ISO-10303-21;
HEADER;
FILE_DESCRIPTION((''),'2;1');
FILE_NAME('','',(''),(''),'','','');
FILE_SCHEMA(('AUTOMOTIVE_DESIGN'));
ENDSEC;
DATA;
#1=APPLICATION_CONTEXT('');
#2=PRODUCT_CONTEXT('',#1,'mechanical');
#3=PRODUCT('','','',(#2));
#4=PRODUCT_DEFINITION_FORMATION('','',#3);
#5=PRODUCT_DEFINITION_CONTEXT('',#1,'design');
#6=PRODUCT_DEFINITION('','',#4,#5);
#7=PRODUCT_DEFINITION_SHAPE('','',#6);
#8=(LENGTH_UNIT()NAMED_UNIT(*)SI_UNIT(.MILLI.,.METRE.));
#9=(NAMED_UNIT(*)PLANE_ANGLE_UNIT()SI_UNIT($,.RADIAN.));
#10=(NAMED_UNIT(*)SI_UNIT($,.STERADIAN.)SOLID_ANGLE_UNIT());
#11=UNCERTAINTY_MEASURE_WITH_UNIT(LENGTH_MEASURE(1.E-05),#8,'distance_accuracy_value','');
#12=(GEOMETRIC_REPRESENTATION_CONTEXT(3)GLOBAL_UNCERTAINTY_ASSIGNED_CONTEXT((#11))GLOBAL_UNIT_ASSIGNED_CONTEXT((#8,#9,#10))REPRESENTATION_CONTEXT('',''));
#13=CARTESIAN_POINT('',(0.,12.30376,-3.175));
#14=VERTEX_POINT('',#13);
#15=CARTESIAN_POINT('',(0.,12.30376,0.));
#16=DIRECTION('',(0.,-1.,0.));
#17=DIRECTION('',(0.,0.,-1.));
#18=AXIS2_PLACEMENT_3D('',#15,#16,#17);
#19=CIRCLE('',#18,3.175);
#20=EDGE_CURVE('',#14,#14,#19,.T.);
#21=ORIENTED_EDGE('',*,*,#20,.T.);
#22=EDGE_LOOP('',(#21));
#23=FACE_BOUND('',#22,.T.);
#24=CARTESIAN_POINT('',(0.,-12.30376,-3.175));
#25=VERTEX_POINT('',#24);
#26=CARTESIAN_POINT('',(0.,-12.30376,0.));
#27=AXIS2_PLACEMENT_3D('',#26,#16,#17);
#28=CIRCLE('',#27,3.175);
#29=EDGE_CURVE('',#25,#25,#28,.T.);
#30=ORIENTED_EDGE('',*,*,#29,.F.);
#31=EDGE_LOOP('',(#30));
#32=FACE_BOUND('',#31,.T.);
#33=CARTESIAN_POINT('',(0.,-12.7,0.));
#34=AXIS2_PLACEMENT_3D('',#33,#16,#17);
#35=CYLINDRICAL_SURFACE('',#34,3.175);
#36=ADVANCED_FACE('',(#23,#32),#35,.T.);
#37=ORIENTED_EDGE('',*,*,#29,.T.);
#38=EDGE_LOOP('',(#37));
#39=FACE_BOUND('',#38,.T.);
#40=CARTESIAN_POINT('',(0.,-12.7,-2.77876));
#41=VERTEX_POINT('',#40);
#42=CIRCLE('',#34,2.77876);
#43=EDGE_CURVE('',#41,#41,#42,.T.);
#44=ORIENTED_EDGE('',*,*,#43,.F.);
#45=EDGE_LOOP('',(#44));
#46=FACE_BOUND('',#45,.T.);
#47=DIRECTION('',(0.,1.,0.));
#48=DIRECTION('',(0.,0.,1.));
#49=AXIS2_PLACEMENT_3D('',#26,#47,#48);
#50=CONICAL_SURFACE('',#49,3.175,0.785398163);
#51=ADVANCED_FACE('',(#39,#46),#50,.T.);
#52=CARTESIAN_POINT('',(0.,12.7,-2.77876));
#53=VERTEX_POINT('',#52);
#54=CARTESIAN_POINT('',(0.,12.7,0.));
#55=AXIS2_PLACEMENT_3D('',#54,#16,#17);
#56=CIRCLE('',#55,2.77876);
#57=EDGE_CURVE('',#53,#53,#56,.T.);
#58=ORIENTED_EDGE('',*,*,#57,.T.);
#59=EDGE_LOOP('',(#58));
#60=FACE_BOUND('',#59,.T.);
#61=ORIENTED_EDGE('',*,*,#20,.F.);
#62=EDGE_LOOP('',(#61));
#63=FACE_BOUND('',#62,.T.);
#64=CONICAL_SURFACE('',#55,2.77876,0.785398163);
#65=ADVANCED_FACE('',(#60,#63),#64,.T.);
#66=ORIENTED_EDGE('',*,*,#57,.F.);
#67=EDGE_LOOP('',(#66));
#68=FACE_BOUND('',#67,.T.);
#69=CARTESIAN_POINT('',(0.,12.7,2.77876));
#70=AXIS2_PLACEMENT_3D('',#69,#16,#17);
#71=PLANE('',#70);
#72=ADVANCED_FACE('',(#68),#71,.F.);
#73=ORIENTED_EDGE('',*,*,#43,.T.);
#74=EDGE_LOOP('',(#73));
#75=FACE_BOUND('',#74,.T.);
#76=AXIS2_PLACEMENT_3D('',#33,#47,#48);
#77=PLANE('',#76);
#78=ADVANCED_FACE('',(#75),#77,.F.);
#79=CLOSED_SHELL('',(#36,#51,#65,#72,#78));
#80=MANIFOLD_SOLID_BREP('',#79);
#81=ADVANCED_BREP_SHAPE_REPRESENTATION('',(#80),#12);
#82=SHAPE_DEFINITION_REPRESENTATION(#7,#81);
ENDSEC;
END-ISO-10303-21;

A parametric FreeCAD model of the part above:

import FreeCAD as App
import Part
import Sketcher
Q = App.Units.Quantity


def add_polygon(sketch, points):
    """Adds a closed chain of lines whose ends are joined by coincident constraints."""
    first, n = sketch.GeometryCount, len(points)
    for a, b in zip(points, points[1:] + points[:1]):
        sketch.addGeometry(Part.LineSegment(App.Vector(*a, 0), App.Vector(*b, 0)), False)
    for i in range(n):
        sketch.addConstraint(Sketcher.Constraint("Coincident", first + i, 2, first + (i + 1) % n, 1))

doc = App.newDocument("Part")
body = doc.addObject("PartDesign::Body", "Body")

# Sketch on YZ plane
sketch1 = body.newObject("Sketcher::SketchObject", "Sketch")
sketch1.AttachmentSupport = (doc.getObject("YZ_Plane"), [""])
sketch1.MapMode = "FlatFace"
add_polygon(sketch1, [(-12.7, 0), (12.7, 0), (12.7, 2.77876), (12.30376, 3.175), (-12.30376, 3.175), (-12.7, 2.77876)])  # lines 0-5
sketch1.addConstraint([
    Sketcher.Constraint("Horizontal", 0),
    Sketcher.Constraint("Vertical", 1),
    Sketcher.Constraint("Horizontal", 3),
    Sketcher.Constraint("Vertical", 5),
    Sketcher.Constraint("Symmetric", 0, 2, 5, 2, -1, 1),
    Sketcher.Constraint("Perpendicular", 2, 4),
    Sketcher.Constraint("Horizontal", 1, 2, 4, 2),
    Sketcher.Constraint("Equal", 2, 4),
    Sketcher.Constraint("DistanceX", 0, 1, 0, 2, Q("1 in")),
    Sketcher.Constraint("DistanceX", 3, 2, 3, 1, Q("0.9688 in")),
    Sketcher.Constraint("DistanceY", 1, 1, 1, 2, Q("0.1094 in")),
])
revolution = body.newObject("PartDesign::Revolution", "Revolution")
revolution.Profile = sketch1
revolution.ReferenceAxis = (sketch1, ["H_Axis"])
revolution.Angle = 360

doc.recompute()
